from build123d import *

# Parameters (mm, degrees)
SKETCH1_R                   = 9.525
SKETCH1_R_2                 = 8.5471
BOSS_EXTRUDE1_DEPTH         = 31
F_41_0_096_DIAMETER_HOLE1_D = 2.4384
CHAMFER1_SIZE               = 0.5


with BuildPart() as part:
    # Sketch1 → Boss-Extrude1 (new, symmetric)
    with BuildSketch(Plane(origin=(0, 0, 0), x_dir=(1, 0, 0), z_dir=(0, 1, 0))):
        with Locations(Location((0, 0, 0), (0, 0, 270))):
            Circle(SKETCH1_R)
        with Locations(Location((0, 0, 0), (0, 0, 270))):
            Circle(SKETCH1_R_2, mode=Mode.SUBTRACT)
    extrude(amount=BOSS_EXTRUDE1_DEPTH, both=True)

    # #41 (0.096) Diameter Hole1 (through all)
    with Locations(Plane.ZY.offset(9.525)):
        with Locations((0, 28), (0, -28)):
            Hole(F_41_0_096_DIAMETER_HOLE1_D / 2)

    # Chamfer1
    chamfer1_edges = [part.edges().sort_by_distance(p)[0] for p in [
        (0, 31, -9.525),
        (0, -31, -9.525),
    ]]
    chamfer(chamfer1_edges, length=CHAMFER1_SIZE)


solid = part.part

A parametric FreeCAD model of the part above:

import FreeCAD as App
import Part
import Sketcher
from FreeCAD import Vector
Q = App.Units.Quantity


def edges_at(feature, points):
    """Names of the edges that pass closest to the given points."""
    edges = feature.Shape.Edges
    near = lambda p: min(range(len(edges)), key=lambda i: edges[i].distToShape(Part.Vertex(*p))[0])
    return sorted({f"Edge{near(p) + 1}" for p in points})

doc = App.newDocument("Part")
body = doc.addObject("PartDesign::Body", "Body")

# Sketch on XZ plane
sketch1 = body.newObject("Sketcher::SketchObject", "Sketch")
sketch1.AttachmentSupport = (doc.getObject("XZ_Plane"), [""])
sketch1.MapMode = "FlatFace"
sketch1.addGeometry([
    Part.Circle(Vector(0, 0, 0), Vector(0, 0, 1), 10),
    Part.Circle(Vector(0, 0, 0), Vector(0, 0, 1), 9),
], False)
sketch1.addConstraint([
    Sketcher.Constraint("Coincident", 0, 3, -1, 1),
    Sketcher.Constraint("Coincident", 1, 3, -1, 1),
    Sketcher.Constraint("Diameter", 0, Q("0.75 in")),
    Sketcher.Constraint("Diameter", 1, Q("0.673 in")),
])
pad1 = body.newObject("PartDesign::Pad", "Pad")
pad1.Profile = sketch1
pad1.Length = 62
pad1.Midplane = True

# Sketch on YZ plane
sketch2 = body.newObject("Sketcher::SketchObject", "Sketch001")
sketch2.AttachmentSupport = (doc.getObject("YZ_Plane"), [""])
sketch2.MapMode = "FlatFace"
sketch2.AttachmentOffset = App.Placement(Vector(0, 0, -0.375 * 25.4), App.Rotation())
sketch2.addGeometry([
    Part.Circle(Vector(28, 0, 0), Vector(0, 0, 1), 1.2),
    Part.Circle(Vector(-28, 0, 0), Vector(0, 0, 1), 1.2),
], False)
sketch2.addConstraint([
    Sketcher.Constraint("Equal", 0, 1),
    Sketcher.Constraint("Symmetric", 0, 3, 1, 3, -1, 1),
    Sketcher.Constraint("PointOnObject", 0, 3, -1),
    Sketcher.Constraint("Diameter", 0, Q("0.096 in")),
    Sketcher.Constraint("DistanceX", -1, 1, 0, 3, Q("28 mm")),
])
doc.recompute()
hole = body.newObject("PartDesign::Hole", "Hole")
hole.Profile = sketch2
hole.ThreadType = "None"
hole.Diameter = Q("0.096 in")
hole.DepthType = "ThroughAll"
hole.Reversed = True
doc.recompute()

chamfer = body.newObject("PartDesign::Chamfer", "Chamfer")
chamfer.Base = (hole, edges_at(hole, [(0, 31, -9.525), (0, -31, -9.525)]))
chamfer.Size = 0.5

doc.recompute()
